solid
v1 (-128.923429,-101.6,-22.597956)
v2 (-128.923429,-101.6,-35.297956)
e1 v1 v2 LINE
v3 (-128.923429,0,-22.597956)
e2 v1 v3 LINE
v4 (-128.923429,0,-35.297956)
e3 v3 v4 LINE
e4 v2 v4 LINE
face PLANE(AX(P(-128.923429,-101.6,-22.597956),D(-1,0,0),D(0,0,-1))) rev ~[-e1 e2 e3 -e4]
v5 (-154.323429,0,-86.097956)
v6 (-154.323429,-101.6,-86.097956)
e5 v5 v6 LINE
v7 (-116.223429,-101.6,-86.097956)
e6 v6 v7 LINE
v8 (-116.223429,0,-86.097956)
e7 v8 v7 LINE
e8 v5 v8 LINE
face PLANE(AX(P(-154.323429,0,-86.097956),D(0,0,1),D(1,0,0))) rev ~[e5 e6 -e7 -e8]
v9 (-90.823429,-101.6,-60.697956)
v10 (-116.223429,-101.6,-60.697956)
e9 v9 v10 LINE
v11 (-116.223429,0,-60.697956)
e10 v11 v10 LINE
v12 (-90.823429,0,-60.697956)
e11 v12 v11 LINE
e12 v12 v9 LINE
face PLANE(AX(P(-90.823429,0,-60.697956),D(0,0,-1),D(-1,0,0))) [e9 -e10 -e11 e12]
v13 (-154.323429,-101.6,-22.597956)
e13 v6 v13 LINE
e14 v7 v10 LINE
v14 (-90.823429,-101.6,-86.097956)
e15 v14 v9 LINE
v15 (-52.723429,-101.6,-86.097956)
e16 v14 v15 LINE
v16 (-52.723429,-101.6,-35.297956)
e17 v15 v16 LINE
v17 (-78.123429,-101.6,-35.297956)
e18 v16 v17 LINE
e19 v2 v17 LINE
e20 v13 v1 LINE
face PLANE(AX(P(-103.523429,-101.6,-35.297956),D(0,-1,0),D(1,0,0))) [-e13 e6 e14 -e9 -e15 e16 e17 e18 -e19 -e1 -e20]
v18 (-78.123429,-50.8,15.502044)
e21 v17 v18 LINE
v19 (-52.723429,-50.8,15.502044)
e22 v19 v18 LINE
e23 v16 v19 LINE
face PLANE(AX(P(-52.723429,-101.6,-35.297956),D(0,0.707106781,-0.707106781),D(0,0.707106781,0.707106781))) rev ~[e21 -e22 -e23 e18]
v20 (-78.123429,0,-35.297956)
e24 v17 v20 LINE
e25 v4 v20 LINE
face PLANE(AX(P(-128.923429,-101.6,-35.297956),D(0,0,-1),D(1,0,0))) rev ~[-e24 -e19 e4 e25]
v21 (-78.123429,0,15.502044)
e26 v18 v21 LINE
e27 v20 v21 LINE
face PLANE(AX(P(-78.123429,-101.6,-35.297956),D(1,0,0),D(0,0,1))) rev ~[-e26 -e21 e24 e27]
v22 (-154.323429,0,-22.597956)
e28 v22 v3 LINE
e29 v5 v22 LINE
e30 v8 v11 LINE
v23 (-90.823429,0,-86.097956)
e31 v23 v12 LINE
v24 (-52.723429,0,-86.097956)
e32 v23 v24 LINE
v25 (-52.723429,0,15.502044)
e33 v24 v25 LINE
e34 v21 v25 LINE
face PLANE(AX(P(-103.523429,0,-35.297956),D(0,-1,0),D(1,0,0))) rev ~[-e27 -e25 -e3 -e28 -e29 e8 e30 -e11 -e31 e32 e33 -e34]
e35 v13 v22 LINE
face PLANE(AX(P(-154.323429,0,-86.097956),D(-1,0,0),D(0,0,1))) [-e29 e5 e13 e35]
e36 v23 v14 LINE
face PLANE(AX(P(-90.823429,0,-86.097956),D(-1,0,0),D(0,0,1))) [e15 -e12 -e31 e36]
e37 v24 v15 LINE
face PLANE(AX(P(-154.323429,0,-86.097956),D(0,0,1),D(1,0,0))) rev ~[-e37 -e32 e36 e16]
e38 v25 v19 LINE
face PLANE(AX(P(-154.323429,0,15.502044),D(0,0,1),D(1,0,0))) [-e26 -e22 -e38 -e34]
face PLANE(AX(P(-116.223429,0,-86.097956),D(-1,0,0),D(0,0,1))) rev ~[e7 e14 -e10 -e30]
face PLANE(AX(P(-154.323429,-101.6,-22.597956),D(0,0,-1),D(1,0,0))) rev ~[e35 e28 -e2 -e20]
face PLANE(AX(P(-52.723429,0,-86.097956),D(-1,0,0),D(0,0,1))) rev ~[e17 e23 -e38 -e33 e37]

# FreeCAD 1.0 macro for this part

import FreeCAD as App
import Part
import Sketcher
from FreeCAD import Vector
Q = App.Units.Quantity


def add_polygon(sketch, points):
    """Adds a closed chain of lines whose ends are joined by coincident constraints."""
    first, n = sketch.GeometryCount, len(points)
    for a, b in zip(points, points[1:] + points[:1]):
        sketch.addGeometry(Part.LineSegment(App.Vector(*a, 0), App.Vector(*b, 0)), False)
    for i in range(n):
        sketch.addConstraint(Sketcher.Constraint("Coincident", first + i, 2, first + (i + 1) % n, 1))

doc = App.newDocument("Part")
body = doc.addObject("PartDesign::Body", "Body")

sketch1 = body.newObject("Sketcher::SketchObject", "Sketch")
sketch1.AttachmentSupport = (doc.getObject("XZ_Plane"), [""])
sketch1.MapMode = "FlatFace"
add_polygon(sketch1, [(-154, 16), (-154, -86), (-53, -86), (-53, 16)])
sketch1.addConstraint([
    Sketcher.Constraint("Vertical", 0),
    Sketcher.Constraint("Horizontal", 1),
    Sketcher.Constraint("Vertical", 2),
    Sketcher.Constraint("Horizontal", 3),
    Sketcher.Constraint("Equal", 3, 0),
    Sketcher.Constraint("DistanceX", 1, 1, 1, 2, Q("4 in")),
    Sketcher.Constraint("DistanceX", 0, 2, -1, 1, Q("154.323429 mm")),
    Sketcher.Constraint("DistanceY", 0, 2, -1, 1, Q("86.097956 mm")),
])
pad1 = body.newObject("PartDesign::Pad", "Pad")
pad1.Profile = sketch1
pad1.Length = Q("4 in")

sketch2 = body.newObject("Sketcher::SketchObject", "Sketch001")
sketch2.AttachmentSupport = (doc.getObject("XZ_Plane"), [""])
sketch2.MapMode = "FlatFace"
sketch2.AttachmentOffset = App.Placement(Vector(0, 0, 4 * 25.4), App.Rotation())
add_polygon(sketch2, [(-78, -35), (-78, 16), (-154, 16), (-154, -23), (-129, -23), (-129, -35)])
sketch2.addConstraint([
    Sketcher.Constraint("Vertical", 0),
    Sketcher.Constraint("Horizontal", 1),
    Sketcher.Constraint("Vertical", 2),
    Sketcher.Constraint("Horizontal", 3),
    Sketcher.Constraint("Vertical", 4),
    Sketcher.Constraint("Horizontal", 5),
    Sketcher.Constraint("Equal", 5, 0),
    Sketcher.Constraint("DistanceX", 1, 2, 1, 1, Q("3 in")),
    Sketcher.Constraint("DistanceX", 3, 1, 3, 2, Q("1 in")),
    Sketcher.Constraint("DistanceY", 2, 2, 2, 1, Q("1.5 in")),
    Sketcher.Constraint("DistanceX", 0, 2, -1, 1, Q("78.123429 mm")),
    Sketcher.Constraint("DistanceY", -1, 1, 0, 2, Q("15.502044 mm")),
])
pocket1 = body.newObject("PartDesign::Pocket", "Pocket")
pocket1.Profile = sketch2
pocket1.Length = Q("4 in")

sketch3 = body.newObject("Sketcher::SketchObject", "Sketch002")
sketch3.AttachmentSupport = (doc.getObject("YZ_Plane"), [""])
sketch3.MapMode = "FlatFace"
sketch3.AttachmentOffset = App.Placement(Vector(0, 0, -52.723429), App.Rotation())
add_polygon(sketch3, [(-102, 16), (-102, -35), (-51, 16)])
sketch3.addConstraint([
    Sketcher.Constraint("Vertical", 0),
    Sketcher.Constraint("Horizontal", 2),
    Sketcher.Constraint("Equal", 2, 0),
    Sketcher.Constraint("DistanceX", 2, 2, 2, 1, Q("2 in")),
    Sketcher.Constraint("DistanceX", 0, 2, -1, 1, Q("4 in")),
    Sketcher.Constraint("DistanceY", 0, 2, -1, 1, Q("35.297956 mm")),
])
pocket2 = body.newObject("PartDesign::Pocket", "Pocket001")
pocket2.Profile = sketch3
pocket2.Length = Q("1 in")

sketch4 = body.newObject("Sketcher::SketchObject", "Sketch003")
sketch4.AttachmentSupport = (doc.getObject("XZ_Plane"), [""])
sketch4.MapMode = "FlatFace"
add_polygon(sketch4, [(-91, -61), (-91, -86), (-116, -86), (-116, -61)])
sketch4.addConstraint([
    Sketcher.Constraint("Vertical", 0),
    Sketcher.Constraint("Horizontal", 1),
    Sketcher.Constraint("Vertical", 2),
    Sketcher.Constraint("Horizontal", 3),
    Sketcher.Constraint("Equal", 3, 0),
    Sketcher.Constraint("DistanceX", 1, 2, 1, 1, Q("1 in")),
    Sketcher.Constraint("DistanceX", 0, 2, -1, 1, Q("90.823429 mm")),
    Sketcher.Constraint("DistanceY", 0, 2, -1, 1, Q("86.097956 mm")),
])
pocket3 = body.newObject("PartDesign::Pocket", "Pocket002")
pocket3.Profile = sketch4
pocket3.Length = Q("4 in")
pocket3.Reversed = True

doc.recompute()
